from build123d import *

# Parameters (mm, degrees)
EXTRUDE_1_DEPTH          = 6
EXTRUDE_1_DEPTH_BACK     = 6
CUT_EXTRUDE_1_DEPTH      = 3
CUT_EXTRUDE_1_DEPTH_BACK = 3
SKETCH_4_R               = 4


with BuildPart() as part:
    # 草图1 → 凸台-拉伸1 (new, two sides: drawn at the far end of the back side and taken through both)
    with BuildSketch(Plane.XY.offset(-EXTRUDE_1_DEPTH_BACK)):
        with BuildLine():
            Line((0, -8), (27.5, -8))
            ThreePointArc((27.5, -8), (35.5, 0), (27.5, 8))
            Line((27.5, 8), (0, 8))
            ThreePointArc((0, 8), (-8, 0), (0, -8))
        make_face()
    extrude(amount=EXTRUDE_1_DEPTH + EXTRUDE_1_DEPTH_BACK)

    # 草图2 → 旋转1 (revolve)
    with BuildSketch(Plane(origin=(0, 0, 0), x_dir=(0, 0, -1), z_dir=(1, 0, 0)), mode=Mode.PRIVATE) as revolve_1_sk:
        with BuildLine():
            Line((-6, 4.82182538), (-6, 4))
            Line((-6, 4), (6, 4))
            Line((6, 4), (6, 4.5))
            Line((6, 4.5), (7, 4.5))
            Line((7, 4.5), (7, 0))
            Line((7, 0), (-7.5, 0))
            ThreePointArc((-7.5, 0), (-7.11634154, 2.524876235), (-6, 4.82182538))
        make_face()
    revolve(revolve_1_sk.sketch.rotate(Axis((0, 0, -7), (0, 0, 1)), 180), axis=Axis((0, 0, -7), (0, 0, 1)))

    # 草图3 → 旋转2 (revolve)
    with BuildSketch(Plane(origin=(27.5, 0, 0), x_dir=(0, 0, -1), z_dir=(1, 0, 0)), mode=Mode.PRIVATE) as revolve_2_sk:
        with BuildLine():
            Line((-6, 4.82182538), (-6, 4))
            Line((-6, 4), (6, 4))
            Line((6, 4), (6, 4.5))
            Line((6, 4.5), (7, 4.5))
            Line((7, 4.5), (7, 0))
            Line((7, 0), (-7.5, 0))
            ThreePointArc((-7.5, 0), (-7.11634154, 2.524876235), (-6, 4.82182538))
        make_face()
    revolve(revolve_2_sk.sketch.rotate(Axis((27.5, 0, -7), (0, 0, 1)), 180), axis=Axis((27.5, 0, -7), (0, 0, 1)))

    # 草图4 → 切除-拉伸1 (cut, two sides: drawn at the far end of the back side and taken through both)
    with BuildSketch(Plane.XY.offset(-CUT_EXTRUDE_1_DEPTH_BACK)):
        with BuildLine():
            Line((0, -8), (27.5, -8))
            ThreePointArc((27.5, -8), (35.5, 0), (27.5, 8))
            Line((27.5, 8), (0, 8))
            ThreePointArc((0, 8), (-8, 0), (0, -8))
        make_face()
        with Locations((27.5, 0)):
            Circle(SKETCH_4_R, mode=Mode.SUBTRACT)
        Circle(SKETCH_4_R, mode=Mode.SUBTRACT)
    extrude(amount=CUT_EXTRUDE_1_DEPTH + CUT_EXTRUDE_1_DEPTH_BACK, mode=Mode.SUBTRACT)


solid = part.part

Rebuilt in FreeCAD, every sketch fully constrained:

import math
import FreeCAD as App
import Part
import Sketcher

doc = App.newDocument("Part")
body = doc.addObject("PartDesign::Body", "Body")

sketch1 = body.newObject("Sketcher::SketchObject", "Sketch")
sketch1.AttachmentSupport = (doc.getObject("XY_Plane"), [""])
sketch1.MapMode = "FlatFace"
sketch1.addGeometry(Part.LineSegment(App.Vector(0, -8, 0), App.Vector(28, -8, 0)), False)
sketch1.addGeometry(Part.ArcOfCircle(Part.Circle(App.Vector(28, 0, 0), App.Vector(0, 0, 1), 8), math.radians(-90), math.radians(90)), False)
sketch1.addGeometry(Part.LineSegment(App.Vector(28, 8, 0), App.Vector(0, 8, 0)), False)
sketch1.addGeometry(Part.ArcOfCircle(Part.Circle(App.Vector(0, 0, 0), App.Vector(0, 0, 1), 8), math.radians(90), math.radians(270)), False)
sketch1.addConstraint(Sketcher.Constraint("Tangent", 0, 2, 1, 1))
sketch1.addConstraint(Sketcher.Constraint("Tangent", 1, 2, 2, 1))
sketch1.addConstraint(Sketcher.Constraint("Tangent", 2, 2, 3, 1))
sketch1.addConstraint(Sketcher.Constraint("Tangent", 3, 2, 0, 1))
sketch1.addConstraint(Sketcher.Constraint("Horizontal", 0))
sketch1.addConstraint(Sketcher.Constraint("Horizontal", 2))
sketch1.addConstraint(Sketcher.Constraint("Coincident", 3, 3, -1, 1))
sketch1.addConstraint(Sketcher.Constraint("Radius", 1, 8.0))
sketch1.addConstraint(Sketcher.Constraint("DistanceX", 0, 1, 0, 2, 27.5))
pad1 = body.newObject("PartDesign::Pad", "Pad")
pad1.Profile = sketch1
pad1.Type = "TwoLengths"
pad1.Length = 6
pad1.Length2 = 6

sketch2 = body.newObject("Sketcher::SketchObject", "Sketch001")
sketch2.AttachmentSupport = (doc.getObject("YZ_Plane"), [""])
sketch2.MapMode = "FlatFace"
sketch2.addGeometry(Part.LineSegment(App.Vector(4, 6, 0), App.Vector(4.8, 6, 0)), False)
sketch2.addGeometry(Part.ArcOfCircle(Part.Circle(App.Vector(0, -1, 0), App.Vector(0, 0, 1), 8.5), math.radians(55), math.radians(90)), False)
sketch2.addGeometry(Part.LineSegment(App.Vector(0, 7.5, 0), App.Vector(0, -7, 0)), False)
sketch2.addGeometry(Part.LineSegment(App.Vector(0, -7, 0), App.Vector(4.5, -7, 0)), False)
sketch2.addGeometry(Part.LineSegment(App.Vector(4.5, -7, 0), App.Vector(4.5, -6, 0)), False)
sketch2.addGeometry(Part.LineSegment(App.Vector(4.5, -6, 0), App.Vector(4, -6, 0)), False)
sketch2.addGeometry(Part.LineSegment(App.Vector(4, -6, 0), App.Vector(4, 6, 0)), False)
sketch2.addConstraint(Sketcher.Constraint("Coincident", 0, 2, 1, 1))
sketch2.addConstraint(Sketcher.Constraint("Coincident", 1, 2, 2, 1))
sketch2.addConstraint(Sketcher.Constraint("Coincident", 2, 2, 3, 1))
sketch2.addConstraint(Sketcher.Constraint("Coincident", 3, 2, 4, 1))
sketch2.addConstraint(Sketcher.Constraint("Coincident", 4, 2, 5, 1))
sketch2.addConstraint(Sketcher.Constraint("Coincident", 5, 2, 6, 1))
sketch2.addConstraint(Sketcher.Constraint("Coincident", 6, 2, 0, 1))
sketch2.addConstraint(Sketcher.Constraint("Horizontal", 0))
sketch2.addConstraint(Sketcher.Constraint("Vertical", 2))
sketch2.addConstraint(Sketcher.Constraint("Horizontal", 3))
sketch2.addConstraint(Sketcher.Constraint("Vertical", 4))
sketch2.addConstraint(Sketcher.Constraint("Horizontal", 5))
sketch2.addConstraint(Sketcher.Constraint("Vertical", 6))
sketch2.addConstraint(Sketcher.Constraint("PointOnObject", 1, 3, -2))
sketch2.addConstraint(Sketcher.Constraint("PointOnObject", 1, 2, -2))
sketch2.addConstraint(Sketcher.Constraint("Radius", 1, 8.5))
sketch2.addConstraint(Sketcher.Constraint("DistanceY", 4, 1, 4, 2, 1.0))
sketch2.addConstraint(Sketcher.Constraint("DistanceY", 6, 1, 6, 2, 12.0))
sketch2.addConstraint(Sketcher.Constraint("DistanceX", 3, 1, 3, 2, 4.5))
sketch2.addConstraint(Sketcher.Constraint("DistanceX", 5, 2, 5, 1, 0.5))
sketch2.addConstraint(Sketcher.Constraint("DistanceY", 2, 2, 2, 1, 14.5))
sketch2.addConstraint(Sketcher.Constraint("DistanceY", 1, 3, -1, 1, 1.0))
revolution = body.newObject("PartDesign::Revolution", "Revolution")
revolution.Profile = sketch2
revolution.ReferenceAxis = (sketch2, ["V_Axis"])
revolution.Angle = 360

sketch3 = body.newObject("Sketcher::SketchObject", "Sketch002")
sketch3.AttachmentSupport = (doc.getObject("YZ_Plane"), [""])
sketch3.MapMode = "FlatFace"
sketch3.AttachmentOffset = App.Placement(App.Vector(0, 0, 27.5), App.Rotation())
sketch3.addGeometry(Part.LineSegment(App.Vector(4, 6, 0), App.Vector(4.8, 6, 0)), False)
sketch3.addGeometry(Part.ArcOfCircle(Part.Circle(App.Vector(0, -1, 0), App.Vector(0, 0, 1), 8.5), math.radians(55), math.radians(90)), False)
sketch3.addGeometry(Part.LineSegment(App.Vector(0, 7.5, 0), App.Vector(0, -7, 0)), False)
sketch3.addGeometry(Part.LineSegment(App.Vector(0, -7, 0), App.Vector(4.5, -7, 0)), False)
sketch3.addGeometry(Part.LineSegment(App.Vector(4.5, -7, 0), App.Vector(4.5, -6, 0)), False)
sketch3.addGeometry(Part.LineSegment(App.Vector(4.5, -6, 0), App.Vector(4, -6, 0)), False)
sketch3.addGeometry(Part.LineSegment(App.Vector(4, -6, 0), App.Vector(4, 6, 0)), False)
sketch3.addConstraint(Sketcher.Constraint("Coincident", 0, 2, 1, 1))
sketch3.addConstraint(Sketcher.Constraint("Coincident", 1, 2, 2, 1))
sketch3.addConstraint(Sketcher.Constraint("Coincident", 2, 2, 3, 1))
sketch3.addConstraint(Sketcher.Constraint("Coincident", 3, 2, 4, 1))
sketch3.addConstraint(Sketcher.Constraint("Coincident", 4, 2, 5, 1))
sketch3.addConstraint(Sketcher.Constraint("Coincident", 5, 2, 6, 1))
sketch3.addConstraint(Sketcher.Constraint("Coincident", 6, 2, 0, 1))
sketch3.addConstraint(Sketcher.Constraint("Horizontal", 0))
sketch3.addConstraint(Sketcher.Constraint("Vertical", 2))
sketch3.addConstraint(Sketcher.Constraint("Horizontal", 3))
sketch3.addConstraint(Sketcher.Constraint("Vertical", 4))
sketch3.addConstraint(Sketcher.Constraint("Horizontal", 5))
sketch3.addConstraint(Sketcher.Constraint("Vertical", 6))
sketch3.addConstraint(Sketcher.Constraint("PointOnObject", 1, 3, -2))
sketch3.addConstraint(Sketcher.Constraint("PointOnObject", 1, 2, -2))
sketch3.addConstraint(Sketcher.Constraint("Radius", 1, 8.5))
sketch3.addConstraint(Sketcher.Constraint("DistanceY", 4, 1, 4, 2, 1.0))
sketch3.addConstraint(Sketcher.Constraint("DistanceY", 6, 1, 6, 2, 12.0))
sketch3.addConstraint(Sketcher.Constraint("DistanceX", 3, 1, 3, 2, 4.5))
sketch3.addConstraint(Sketcher.Constraint("DistanceX", 5, 2, 5, 1, 0.5))
sketch3.addConstraint(Sketcher.Constraint("DistanceY", 2, 2, 2, 1, 14.5))
sketch3.addConstraint(Sketcher.Constraint("DistanceY", 1, 3, -1, 1, 1.0))
revolution2 = body.newObject("PartDesign::Revolution", "Revolution001")
revolution2.Profile = sketch3
revolution2.ReferenceAxis = (sketch3, ["V_Axis"])
revolution2.Angle = 360

sketch4 = body.newObject("Sketcher::SketchObject", "Sketch003")
sketch4.AttachmentSupport = (doc.getObject("XY_Plane"), [""])
sketch4.MapMode = "FlatFace"
sketch4.addGeometry(Part.LineSegment(App.Vector(0, -8, 0), App.Vector(27.5, -8, 0)), False)
sketch4.addGeometry(Part.ArcOfCircle(Part.Circle(App.Vector(27.5, 0, 0), App.Vector(0, 0, 1), 8), math.radians(-90), math.radians(90)), False)
sketch4.addGeometry(Part.LineSegment(App.Vector(27.5, 8, 0), App.Vector(0, 8, 0)), False)
sketch4.addGeometry(Part.ArcOfCircle(Part.Circle(App.Vector(0, 0, 0), App.Vector(0, 0, 1), 8), math.radians(90), math.radians(270)), False)
sketch4.addGeometry(Part.Circle(App.Vector(0, 0, 0), App.Vector(0, 0, 1), 4), False)
sketch4.addGeometry(Part.Circle(App.Vector(27.5, 0, 0), App.Vector(0, 0, 1), 4), False)
sketch4.addConstraint(Sketcher.Constraint("Tangent", 0, 2, 1, 1))
sketch4.addConstraint(Sketcher.Constraint("Tangent", 1, 2, 2, 1))
sketch4.addConstraint(Sketcher.Constraint("Tangent", 2, 2, 3, 1))
sketch4.addConstraint(Sketcher.Constraint("Tangent", 3, 2, 0, 1))
sketch4.addConstraint(Sketcher.Constraint("Horizontal", 0))
sketch4.addConstraint(Sketcher.Constraint("Horizontal", 2))
sketch4.addConstraint(Sketcher.Constraint("Coincident", 3, 3, -1, 1))
sketch4.addConstraint(Sketcher.Constraint("Coincident", 4, 3, -1, 1))
sketch4.addConstraint(Sketcher.Constraint("Coincident", 5, 3, 1, 3))
sketch4.addConstraint(Sketcher.Constraint("Equal", 4, 5))
sketch4.addConstraint(Sketcher.Constraint("Diameter", 4, 8.0))
sketch4.addConstraint(Sketcher.Constraint("Radius", 1, 8.0))
sketch4.addConstraint(Sketcher.Constraint("DistanceX", 0, 1, 0, 2, 27.5))
pocket1 = body.newObject("PartDesign::Pocket", "Pocket")
pocket1.Profile = sketch4
pocket1.Type = "TwoLengths"
pocket1.Length = 3
pocket1.Length2 = 3
pocket1.Reversed = True

doc.recompute()
